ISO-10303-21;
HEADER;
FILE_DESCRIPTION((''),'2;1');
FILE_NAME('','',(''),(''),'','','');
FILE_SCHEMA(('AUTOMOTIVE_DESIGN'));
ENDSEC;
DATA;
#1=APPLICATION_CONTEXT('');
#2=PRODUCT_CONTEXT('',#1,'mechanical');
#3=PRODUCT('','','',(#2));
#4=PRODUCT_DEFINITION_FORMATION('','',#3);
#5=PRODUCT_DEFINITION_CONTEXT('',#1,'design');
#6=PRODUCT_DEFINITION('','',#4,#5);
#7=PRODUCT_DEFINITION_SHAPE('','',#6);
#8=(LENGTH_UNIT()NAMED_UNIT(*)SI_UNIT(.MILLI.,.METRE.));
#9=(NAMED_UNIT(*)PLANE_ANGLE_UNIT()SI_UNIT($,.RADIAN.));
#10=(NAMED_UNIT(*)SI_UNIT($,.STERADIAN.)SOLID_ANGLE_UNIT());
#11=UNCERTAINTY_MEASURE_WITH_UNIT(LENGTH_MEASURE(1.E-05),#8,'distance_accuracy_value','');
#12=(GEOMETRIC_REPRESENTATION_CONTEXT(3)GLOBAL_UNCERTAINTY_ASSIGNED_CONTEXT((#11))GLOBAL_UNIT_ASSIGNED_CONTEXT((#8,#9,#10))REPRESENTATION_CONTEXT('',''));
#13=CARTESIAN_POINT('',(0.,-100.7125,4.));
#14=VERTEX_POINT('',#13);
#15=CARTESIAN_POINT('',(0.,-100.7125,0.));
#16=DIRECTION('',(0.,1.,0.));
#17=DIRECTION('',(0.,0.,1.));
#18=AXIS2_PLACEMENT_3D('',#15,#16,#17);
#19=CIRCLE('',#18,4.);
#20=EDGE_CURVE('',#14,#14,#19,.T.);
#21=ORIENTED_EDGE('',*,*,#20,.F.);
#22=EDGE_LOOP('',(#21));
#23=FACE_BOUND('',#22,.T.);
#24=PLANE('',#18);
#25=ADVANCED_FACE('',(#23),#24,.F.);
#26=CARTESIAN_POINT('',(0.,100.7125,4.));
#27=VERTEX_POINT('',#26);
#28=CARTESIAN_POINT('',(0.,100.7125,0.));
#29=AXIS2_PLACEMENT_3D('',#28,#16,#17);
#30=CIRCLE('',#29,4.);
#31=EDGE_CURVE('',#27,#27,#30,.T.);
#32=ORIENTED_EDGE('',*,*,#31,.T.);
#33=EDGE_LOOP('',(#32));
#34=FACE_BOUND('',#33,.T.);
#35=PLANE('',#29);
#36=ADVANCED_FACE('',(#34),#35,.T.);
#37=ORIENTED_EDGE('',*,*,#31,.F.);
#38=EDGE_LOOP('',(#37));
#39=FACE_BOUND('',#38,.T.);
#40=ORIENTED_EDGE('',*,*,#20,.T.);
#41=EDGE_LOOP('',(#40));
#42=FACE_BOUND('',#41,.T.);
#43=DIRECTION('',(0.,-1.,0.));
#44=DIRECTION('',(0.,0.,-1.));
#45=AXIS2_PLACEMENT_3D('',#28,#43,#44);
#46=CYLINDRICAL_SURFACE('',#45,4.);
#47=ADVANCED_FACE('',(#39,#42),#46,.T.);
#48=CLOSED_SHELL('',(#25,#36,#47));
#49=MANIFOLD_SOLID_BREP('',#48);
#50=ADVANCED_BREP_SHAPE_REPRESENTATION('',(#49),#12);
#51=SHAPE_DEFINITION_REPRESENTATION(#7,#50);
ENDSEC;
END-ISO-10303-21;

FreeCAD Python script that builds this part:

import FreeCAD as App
import Part
import Sketcher

V = App.Vector

doc = App.newDocument("Part")
params = doc.addObject("Spreadsheet::Sheet", "Params")
for row, (alias, value) in enumerate([
    ("sketch1_diameter", "8 mm"),
    ("pad1_length", "201.425 mm"),
], start=1):
    params.set(f"A{row}", alias)
    params.set(f"B{row}", "=" + value)
    params.setAlias(f"B{row}", alias)

body = doc.addObject("PartDesign::Body", "Body")

# Sketch on XZ plane
sketch1 = body.newObject("Sketcher::SketchObject", "Sketch")
sketch1.AttachmentSupport = (doc.getObject("XZ_Plane"), [""])
sketch1.MapMode = "FlatFace"
sketch1.addGeometry(Part.Circle(V(0, 0, 0), V(0, 0, 1), 4), False)
sketch1.addConstraint([
    Sketcher.Constraint("Coincident", 0, 3, -1, 1),
    Sketcher.Constraint("Diameter", 0, 8.0),
])
sketch1.setExpression("Constraints[1]", "Params.sketch1_diameter")
pad1 = body.newObject("PartDesign::Pad", "Pad")
pad1.Profile = sketch1
pad1.setExpression("Length", "Params.pad1_length")
pad1.Midplane = True

doc.recompute()
